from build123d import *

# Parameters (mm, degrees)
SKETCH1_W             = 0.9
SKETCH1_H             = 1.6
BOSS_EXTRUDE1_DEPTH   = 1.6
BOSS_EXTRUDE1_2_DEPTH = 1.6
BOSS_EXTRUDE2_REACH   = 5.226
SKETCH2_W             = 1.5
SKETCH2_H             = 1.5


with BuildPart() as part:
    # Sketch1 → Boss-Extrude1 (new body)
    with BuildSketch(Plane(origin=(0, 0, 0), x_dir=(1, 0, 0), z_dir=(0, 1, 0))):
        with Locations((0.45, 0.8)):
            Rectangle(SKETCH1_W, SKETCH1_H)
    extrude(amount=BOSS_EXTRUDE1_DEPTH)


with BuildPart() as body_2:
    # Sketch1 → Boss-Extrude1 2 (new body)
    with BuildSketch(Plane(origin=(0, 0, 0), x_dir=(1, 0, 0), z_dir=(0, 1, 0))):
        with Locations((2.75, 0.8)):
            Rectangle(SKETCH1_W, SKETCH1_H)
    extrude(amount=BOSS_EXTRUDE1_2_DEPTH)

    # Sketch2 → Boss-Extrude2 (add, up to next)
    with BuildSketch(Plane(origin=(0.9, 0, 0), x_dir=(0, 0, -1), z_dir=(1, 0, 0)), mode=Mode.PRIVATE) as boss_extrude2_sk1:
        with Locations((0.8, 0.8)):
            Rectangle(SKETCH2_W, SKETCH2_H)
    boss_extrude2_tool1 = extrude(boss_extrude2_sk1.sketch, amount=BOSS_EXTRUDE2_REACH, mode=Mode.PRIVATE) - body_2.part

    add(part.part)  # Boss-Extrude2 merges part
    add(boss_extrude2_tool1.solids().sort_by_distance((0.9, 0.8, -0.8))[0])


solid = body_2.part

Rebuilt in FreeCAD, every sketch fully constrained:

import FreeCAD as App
import Part
import Sketcher

doc = App.newDocument("Part")
params = doc.addObject("Spreadsheet::Sheet", "Params")
for row, (alias, value) in enumerate([
    ("sketch1_width", "0.9 mm"),
    ("sketch1_height", "1.6 mm"),
    ("pad1_length", "1.6 mm"),
    ("sketch2_width", "0.9 mm"),
    ("sketch2_height", "1.6 mm"),
    ("pad2_length", "1.6 mm"),
    ("sketch3_width", "1.5 mm"),
], start=1):
    params.set(f"A{row}", alias)
    params.set(f"B{row}", "=" + value)
    params.setAlias(f"B{row}", alias)

body = doc.addObject("PartDesign::Body", "Body")

# Sketch on XZ plane
sketch1 = body.newObject("Sketcher::SketchObject", "Sketch")
sketch1.AttachmentSupport = (doc.getObject("XZ_Plane"), [""])
sketch1.MapMode = "FlatFace"
sketch1.addGeometry([
    Part.LineSegment(App.Vector(0, -1.6, 0), App.Vector(0, 0, 0)),
    Part.LineSegment(App.Vector(0, 0, 0), App.Vector(0.9, 0, 0)),
    Part.LineSegment(App.Vector(0.9, 0, 0), App.Vector(0.9, -1.6, 0)),
    Part.LineSegment(App.Vector(0.9, -1.6, 0), App.Vector(0, -1.6, 0)),
], False)
sketch1.addConstraint([
    Sketcher.Constraint("Coincident", 0, 2, 1, 1),
    Sketcher.Constraint("Coincident", 1, 2, 2, 1),
    Sketcher.Constraint("Coincident", 2, 2, 3, 1),
    Sketcher.Constraint("Coincident", 3, 2, 0, 1),
    Sketcher.Constraint("Vertical", 0),
    Sketcher.Constraint("Horizontal", 1),
    Sketcher.Constraint("Vertical", 2),
    Sketcher.Constraint("Horizontal", 3),
    Sketcher.Constraint("Coincident", 0, 2, -1, 1),
    Sketcher.Constraint("DistanceX", 1, 1, 1, 2, 0.9),
    Sketcher.Constraint("DistanceY", 0, 1, 0, 2, 1.6),
])
sketch1.setExpression("Constraints[9]", "Params.sketch1_width")
sketch1.setExpression("Constraints[10]", "Params.sketch1_height")
pad1 = body.newObject("PartDesign::Pad", "Pad")
pad1.Profile = sketch1
pad1.setExpression("Length", "Params.pad1_length")
pad1.Reversed = True
body2 = doc.addObject("PartDesign::Body", "Body001")
body2.AllowCompound = True

# Sketch on XZ plane
sketch2 = body2.newObject("Sketcher::SketchObject", "Sketch001")
sketch2.AttachmentSupport = (doc.getObject("XZ_Plane001"), [""])
sketch2.MapMode = "FlatFace"
sketch2.addGeometry([
    Part.LineSegment(App.Vector(2.3, -1.6, 0), App.Vector(2.3, 0, 0)),
    Part.LineSegment(App.Vector(2.3, 0, 0), App.Vector(3.2, 0, 0)),
    Part.LineSegment(App.Vector(3.2, 0, 0), App.Vector(3.2, -1.6, 0)),
    Part.LineSegment(App.Vector(3.2, -1.6, 0), App.Vector(2.3, -1.6, 0)),
], False)
sketch2.addConstraint([
    Sketcher.Constraint("Coincident", 0, 2, 1, 1),
    Sketcher.Constraint("Coincident", 1, 2, 2, 1),
    Sketcher.Constraint("Coincident", 2, 2, 3, 1),
    Sketcher.Constraint("Coincident", 3, 2, 0, 1),
    Sketcher.Constraint("Vertical", 0),
    Sketcher.Constraint("Horizontal", 1),
    Sketcher.Constraint("Vertical", 2),
    Sketcher.Constraint("Horizontal", 3),
    Sketcher.Constraint("PointOnObject", 0, 2, -1),
    Sketcher.Constraint("DistanceX", 1, 1, 1, 2, 0.9),
    Sketcher.Constraint("DistanceY", 0, 1, 0, 2, 1.6),
    Sketcher.Constraint("DistanceX", -1, 1, 0, 2, 2.3),
])
sketch2.setExpression("Constraints[9]", "Params.sketch2_width")
sketch2.setExpression("Constraints[10]", "Params.sketch2_height")
pad2 = body2.newObject("PartDesign::Pad", "Pad001")
pad2.Profile = sketch2
pad2.setExpression("Length", "Params.pad2_length")
pad2.Reversed = True
doc.recompute()

boolean = body2.newObject("PartDesign::Boolean", "Boolean")
boolean.Type = "Fuse"
boolean.addObjects([body])

# Sketch on YZ plane
sketch3 = body2.newObject("Sketcher::SketchObject", "Sketch002")
sketch3.AttachmentSupport = (doc.getObject("YZ_Plane001"), [""])
sketch3.MapMode = "FlatFace"
sketch3.AttachmentOffset = App.Placement(App.Vector(0, 0, 0.9), App.Rotation())
sketch3.addGeometry([
    Part.LineSegment(App.Vector(1.6, -0.1, 0), App.Vector(0.1, -0.1, 0)),
    Part.LineSegment(App.Vector(0.1, -0.1, 0), App.Vector(0.1, -1.6, 0)),
    Part.LineSegment(App.Vector(0.1, -1.6, 0), App.Vector(1.6, -1.6, 0)),
    Part.LineSegment(App.Vector(1.6, -1.6, 0), App.Vector(1.6, -0.1, 0)),
], False)
sketch3.addConstraint([
    Sketcher.Constraint("Coincident", 0, 2, 1, 1),
    Sketcher.Constraint("Coincident", 1, 2, 2, 1),
    Sketcher.Constraint("Coincident", 2, 2, 3, 1),
    Sketcher.Constraint("Coincident", 3, 2, 0, 1),
    Sketcher.Constraint("Horizontal", 0),
    Sketcher.Constraint("Vertical", 1),
    Sketcher.Constraint("Horizontal", 2),
    Sketcher.Constraint("Vertical", 3),
    Sketcher.Constraint("Equal", 2, 1),
    Sketcher.Constraint("DistanceX", 0, 2, 0, 1, 1.5),
    Sketcher.Constraint("DistanceX", -1, 1, 0, 2, 0.05),
    Sketcher.Constraint("DistanceY", 0, 2, -1, 1, 0.05),
])
sketch3.setExpression("Constraints[9]", "Params.sketch3_width")
pad3 = body2.newObject("PartDesign::Pad", "Pad002")
pad3.Profile = sketch3
pad3.Type = "UpToFirst"

doc.recompute()
